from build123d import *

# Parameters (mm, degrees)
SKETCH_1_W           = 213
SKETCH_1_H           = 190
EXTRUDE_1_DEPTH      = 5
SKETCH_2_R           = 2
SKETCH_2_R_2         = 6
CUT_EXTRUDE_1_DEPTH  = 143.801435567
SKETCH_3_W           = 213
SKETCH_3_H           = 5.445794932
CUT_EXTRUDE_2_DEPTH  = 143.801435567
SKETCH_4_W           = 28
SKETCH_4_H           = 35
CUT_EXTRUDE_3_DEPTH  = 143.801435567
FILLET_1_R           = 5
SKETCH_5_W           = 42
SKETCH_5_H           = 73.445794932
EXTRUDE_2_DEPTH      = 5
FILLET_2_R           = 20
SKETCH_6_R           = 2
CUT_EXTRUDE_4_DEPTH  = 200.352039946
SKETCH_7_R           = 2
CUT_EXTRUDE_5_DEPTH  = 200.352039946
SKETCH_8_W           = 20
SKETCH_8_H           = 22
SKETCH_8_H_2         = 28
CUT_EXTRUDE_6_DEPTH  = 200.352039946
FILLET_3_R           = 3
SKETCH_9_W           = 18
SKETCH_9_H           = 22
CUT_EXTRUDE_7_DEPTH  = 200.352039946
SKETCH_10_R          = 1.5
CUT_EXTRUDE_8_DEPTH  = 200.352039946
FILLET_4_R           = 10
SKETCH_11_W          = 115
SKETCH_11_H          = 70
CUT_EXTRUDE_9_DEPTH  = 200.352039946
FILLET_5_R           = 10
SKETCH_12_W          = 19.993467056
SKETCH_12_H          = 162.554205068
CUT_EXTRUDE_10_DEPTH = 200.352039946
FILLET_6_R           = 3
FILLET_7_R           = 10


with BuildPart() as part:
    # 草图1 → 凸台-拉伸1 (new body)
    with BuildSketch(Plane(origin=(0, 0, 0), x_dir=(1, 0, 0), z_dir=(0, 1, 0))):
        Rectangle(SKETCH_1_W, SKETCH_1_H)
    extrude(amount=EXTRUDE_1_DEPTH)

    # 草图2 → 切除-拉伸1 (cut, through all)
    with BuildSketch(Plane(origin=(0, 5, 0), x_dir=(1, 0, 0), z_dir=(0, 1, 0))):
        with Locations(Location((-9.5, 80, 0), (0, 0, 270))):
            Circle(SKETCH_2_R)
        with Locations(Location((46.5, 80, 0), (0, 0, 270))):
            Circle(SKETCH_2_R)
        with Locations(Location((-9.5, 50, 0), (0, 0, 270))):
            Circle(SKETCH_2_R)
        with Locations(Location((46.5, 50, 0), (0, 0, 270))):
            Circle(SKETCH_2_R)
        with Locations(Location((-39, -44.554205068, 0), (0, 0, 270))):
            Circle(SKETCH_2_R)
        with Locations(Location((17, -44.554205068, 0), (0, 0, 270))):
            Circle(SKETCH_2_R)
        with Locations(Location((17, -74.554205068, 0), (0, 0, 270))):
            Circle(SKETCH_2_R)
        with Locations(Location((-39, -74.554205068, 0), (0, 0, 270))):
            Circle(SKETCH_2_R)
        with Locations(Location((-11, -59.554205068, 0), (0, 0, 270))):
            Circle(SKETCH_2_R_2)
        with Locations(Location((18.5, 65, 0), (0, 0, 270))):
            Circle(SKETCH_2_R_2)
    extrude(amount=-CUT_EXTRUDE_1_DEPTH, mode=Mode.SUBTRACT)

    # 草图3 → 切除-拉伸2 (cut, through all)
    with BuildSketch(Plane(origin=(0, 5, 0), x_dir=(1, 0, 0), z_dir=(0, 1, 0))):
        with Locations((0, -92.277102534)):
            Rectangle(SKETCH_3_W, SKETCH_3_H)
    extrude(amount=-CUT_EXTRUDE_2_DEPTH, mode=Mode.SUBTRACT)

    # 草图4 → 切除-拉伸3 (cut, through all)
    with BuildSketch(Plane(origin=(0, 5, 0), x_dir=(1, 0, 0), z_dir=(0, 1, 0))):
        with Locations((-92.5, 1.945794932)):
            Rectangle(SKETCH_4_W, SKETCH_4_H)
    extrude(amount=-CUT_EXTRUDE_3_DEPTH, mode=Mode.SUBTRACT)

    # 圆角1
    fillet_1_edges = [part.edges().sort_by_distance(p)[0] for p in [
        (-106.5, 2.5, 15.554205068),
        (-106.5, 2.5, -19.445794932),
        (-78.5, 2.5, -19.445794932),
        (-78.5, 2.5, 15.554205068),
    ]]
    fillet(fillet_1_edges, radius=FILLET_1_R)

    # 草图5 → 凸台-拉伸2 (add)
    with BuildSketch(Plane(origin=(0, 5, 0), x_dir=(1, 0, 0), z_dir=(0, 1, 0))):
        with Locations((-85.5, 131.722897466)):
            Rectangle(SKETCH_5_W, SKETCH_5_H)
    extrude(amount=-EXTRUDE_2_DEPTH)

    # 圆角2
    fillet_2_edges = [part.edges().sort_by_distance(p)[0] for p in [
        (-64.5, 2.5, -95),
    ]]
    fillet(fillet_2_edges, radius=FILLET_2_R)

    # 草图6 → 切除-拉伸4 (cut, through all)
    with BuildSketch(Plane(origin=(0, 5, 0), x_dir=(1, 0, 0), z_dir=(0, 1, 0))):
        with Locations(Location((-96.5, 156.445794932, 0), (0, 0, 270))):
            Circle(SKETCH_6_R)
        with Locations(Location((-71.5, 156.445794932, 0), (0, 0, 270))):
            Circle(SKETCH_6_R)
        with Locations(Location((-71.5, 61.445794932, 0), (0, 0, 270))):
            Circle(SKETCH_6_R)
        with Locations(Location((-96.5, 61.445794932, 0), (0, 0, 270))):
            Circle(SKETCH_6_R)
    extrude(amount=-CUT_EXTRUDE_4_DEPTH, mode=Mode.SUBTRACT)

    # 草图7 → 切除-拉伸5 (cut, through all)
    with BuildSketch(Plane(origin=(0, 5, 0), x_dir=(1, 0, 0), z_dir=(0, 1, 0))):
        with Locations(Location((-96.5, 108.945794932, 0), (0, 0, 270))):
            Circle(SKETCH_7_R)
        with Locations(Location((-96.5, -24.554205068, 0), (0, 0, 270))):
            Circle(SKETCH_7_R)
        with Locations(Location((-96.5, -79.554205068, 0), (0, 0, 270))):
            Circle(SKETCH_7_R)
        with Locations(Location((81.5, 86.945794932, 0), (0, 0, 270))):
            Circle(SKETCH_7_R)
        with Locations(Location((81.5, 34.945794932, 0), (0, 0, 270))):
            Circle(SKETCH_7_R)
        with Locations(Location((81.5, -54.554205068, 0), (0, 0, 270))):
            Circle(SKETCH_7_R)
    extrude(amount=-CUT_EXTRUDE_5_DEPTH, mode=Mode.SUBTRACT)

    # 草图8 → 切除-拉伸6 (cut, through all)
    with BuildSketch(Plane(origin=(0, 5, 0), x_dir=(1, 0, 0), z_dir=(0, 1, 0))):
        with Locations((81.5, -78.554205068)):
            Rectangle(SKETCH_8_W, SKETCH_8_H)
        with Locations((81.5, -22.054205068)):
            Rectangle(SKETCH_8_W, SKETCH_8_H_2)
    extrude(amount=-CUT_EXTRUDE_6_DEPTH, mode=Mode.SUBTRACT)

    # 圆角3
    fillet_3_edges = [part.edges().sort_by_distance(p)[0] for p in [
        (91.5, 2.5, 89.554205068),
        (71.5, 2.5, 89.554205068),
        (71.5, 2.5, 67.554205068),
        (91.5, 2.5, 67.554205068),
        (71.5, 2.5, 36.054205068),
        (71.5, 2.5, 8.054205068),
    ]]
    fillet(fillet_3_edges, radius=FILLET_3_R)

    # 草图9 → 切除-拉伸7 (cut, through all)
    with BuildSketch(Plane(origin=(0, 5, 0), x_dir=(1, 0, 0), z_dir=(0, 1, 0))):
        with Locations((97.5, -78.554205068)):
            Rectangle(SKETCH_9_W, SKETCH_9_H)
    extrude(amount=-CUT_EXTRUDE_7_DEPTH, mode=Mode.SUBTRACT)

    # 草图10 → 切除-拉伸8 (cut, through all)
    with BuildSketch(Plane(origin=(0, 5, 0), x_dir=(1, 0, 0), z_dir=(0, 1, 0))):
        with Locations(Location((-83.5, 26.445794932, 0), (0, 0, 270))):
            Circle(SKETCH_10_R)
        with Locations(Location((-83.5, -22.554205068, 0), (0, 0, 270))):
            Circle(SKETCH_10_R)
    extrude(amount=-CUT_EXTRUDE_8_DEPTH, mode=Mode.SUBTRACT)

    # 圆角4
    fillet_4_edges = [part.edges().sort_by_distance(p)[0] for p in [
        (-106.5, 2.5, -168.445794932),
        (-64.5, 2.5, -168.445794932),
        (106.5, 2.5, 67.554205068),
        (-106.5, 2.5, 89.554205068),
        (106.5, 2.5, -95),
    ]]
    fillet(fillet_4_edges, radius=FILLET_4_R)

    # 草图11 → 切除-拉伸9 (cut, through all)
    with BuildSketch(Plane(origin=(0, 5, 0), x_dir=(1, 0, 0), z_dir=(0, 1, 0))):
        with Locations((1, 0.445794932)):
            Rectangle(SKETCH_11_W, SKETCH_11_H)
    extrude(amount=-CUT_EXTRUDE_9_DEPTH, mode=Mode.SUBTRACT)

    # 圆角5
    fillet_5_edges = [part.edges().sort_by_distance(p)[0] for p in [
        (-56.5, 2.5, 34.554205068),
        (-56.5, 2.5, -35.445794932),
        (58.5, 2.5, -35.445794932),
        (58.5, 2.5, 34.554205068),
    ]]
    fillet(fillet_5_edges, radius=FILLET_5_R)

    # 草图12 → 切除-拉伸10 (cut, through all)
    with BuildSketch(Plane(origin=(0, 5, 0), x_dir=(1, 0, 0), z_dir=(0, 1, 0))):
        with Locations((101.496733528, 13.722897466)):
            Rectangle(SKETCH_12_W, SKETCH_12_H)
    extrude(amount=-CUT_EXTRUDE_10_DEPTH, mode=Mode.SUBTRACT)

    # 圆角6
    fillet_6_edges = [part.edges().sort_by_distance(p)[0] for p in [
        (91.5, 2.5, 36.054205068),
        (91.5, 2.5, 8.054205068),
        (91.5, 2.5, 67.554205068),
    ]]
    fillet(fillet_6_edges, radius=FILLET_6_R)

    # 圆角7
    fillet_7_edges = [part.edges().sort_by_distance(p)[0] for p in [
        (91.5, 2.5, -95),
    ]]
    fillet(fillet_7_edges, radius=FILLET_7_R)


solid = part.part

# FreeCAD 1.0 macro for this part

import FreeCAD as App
import Part
import Sketcher
from FreeCAD import Vector


def edges_at(feature, points):
    """Names of the edges that pass closest to the given points."""
    edges = feature.Shape.Edges
    near = lambda p: min(range(len(edges)), key=lambda i: edges[i].distToShape(Part.Vertex(*p))[0])
    return sorted({f"Edge{near(p) + 1}" for p in points})


def add_polygon(sketch, points):
    """Adds a closed chain of lines whose ends are joined by coincident constraints."""
    first, n = sketch.GeometryCount, len(points)
    for a, b in zip(points, points[1:] + points[:1]):
        sketch.addGeometry(Part.LineSegment(App.Vector(*a, 0), App.Vector(*b, 0)), False)
    for i in range(n):
        sketch.addConstraint(Sketcher.Constraint("Coincident", first + i, 2, first + (i + 1) % n, 1))

doc = App.newDocument("Part")
body = doc.addObject("PartDesign::Body", "Body")

sketch1 = body.newObject("Sketcher::SketchObject", "Sketch")
sketch1.AttachmentSupport = (doc.getObject("XZ_Plane"), [""])
sketch1.MapMode = "FlatFace"
add_polygon(sketch1, [(-106, -95), (-106, 95), (106, 95), (106, -95)])
sketch1.addConstraint([
    Sketcher.Constraint("Vertical", 0),
    Sketcher.Constraint("Horizontal", 1),
    Sketcher.Constraint("Vertical", 2),
    Sketcher.Constraint("Horizontal", 3),
    Sketcher.Constraint("Symmetric", 0, 2, 2, 2, -1, 1),
    Sketcher.Constraint("DistanceX", 1, 1, 1, 2, 213.0),
    Sketcher.Constraint("DistanceY", 0, 1, 0, 2, 190.0),
])
pad1 = body.newObject("PartDesign::Pad", "Pad")
pad1.Profile = sketch1
pad1.Length = 5
pad1.Reversed = True

sketch2 = body.newObject("Sketcher::SketchObject", "Sketch001")
sketch2.AttachmentSupport = (doc.getObject("XZ_Plane"), [""])
sketch2.MapMode = "FlatFace"
sketch2.AttachmentOffset = App.Placement(Vector(0, 0, -5), App.Rotation())
sketch2.addGeometry([
    Part.Circle(Vector(-9.5, -80, 0), Vector(0, 0, 1), 2),
    Part.Circle(Vector(46.5, -80, 0), Vector(0, 0, 1), 2),
    Part.Circle(Vector(-9.5, -50, 0), Vector(0, 0, 1), 2),
    Part.Circle(Vector(46.5, -50, 0), Vector(0, 0, 1), 2),
    Part.Circle(Vector(-39, 44.6, 0), Vector(0, 0, 1), 2),
    Part.Circle(Vector(17, 44.6, 0), Vector(0, 0, 1), 2),
    Part.Circle(Vector(17, 74.6, 0), Vector(0, 0, 1), 2),
    Part.Circle(Vector(-39, 74.6, 0), Vector(0, 0, 1), 2),
    Part.Circle(Vector(-11, 59.6, 0), Vector(0, 0, 1), 6),
    Part.Circle(Vector(18.5, -65, 0), Vector(0, 0, 1), 6),
], False)
sketch2.addConstraint([
    Sketcher.Constraint("Equal", 0, 1),
    Sketcher.Constraint("Equal", 1, 2),
    Sketcher.Constraint("Equal", 2, 3),
    Sketcher.Constraint("Equal", 3, 4),
    Sketcher.Constraint("Equal", 4, 5),
    Sketcher.Constraint("Equal", 5, 6),
    Sketcher.Constraint("Equal", 6, 7),
    Sketcher.Constraint("Equal", 8, 9),
    Sketcher.Constraint("Horizontal", 0, 3, 1, 3),
    Sketcher.Constraint("Horizontal", 2, 3, 3, 3),
    Sketcher.Constraint("Horizontal", 4, 3, 5, 3),
    Sketcher.Constraint("Horizontal", 6, 3, 7, 3),
    Sketcher.Constraint("Vertical", 0, 3, 2, 3),
    Sketcher.Constraint("Vertical", 1, 3, 3, 3),
    Sketcher.Constraint("Vertical", 5, 3, 6, 3),
    Sketcher.Constraint("Vertical", 4, 3, 7, 3),
    Sketcher.Constraint("Diameter", 0, 4.0),
    Sketcher.Constraint("Diameter", 8, 12.0),
    Sketcher.Constraint("DistanceY", 0, 3, -1, 1, 80.0),
    Sketcher.Constraint("DistanceY", 2, 3, -1, 1, 50.0),
    Sketcher.Constraint("DistanceX", 4, 3, -1, 1, 39.0),
    Sketcher.Constraint("DistanceX", -1, 1, 5, 3, 17.0),
    Sketcher.Constraint("DistanceX", 8, 3, -1, 1, 11.0),
    Sketcher.Constraint("DistanceY", 9, 3, -1, 1, 65.0),
    Sketcher.Constraint("DistanceX", 0, 3, 1, 3, 56.0),
    Sketcher.Constraint("DistanceY", 5, 3, 6, 3, 30.0),
    Sketcher.Constraint("DistanceY", 4, 3, 8, 3, 15.0),
    Sketcher.Constraint("DistanceX", 0, 3, 9, 3, 28.0),
    Sketcher.Constraint("DistanceX", 0, 3, -1, 1, 9.5),
    Sketcher.Constraint("DistanceY", -1, 1, 4, 3, 44.554205),
])
pocket1 = body.newObject("PartDesign::Pocket", "Pocket")
pocket1.Profile = sketch2
pocket1.Type = "ThroughAll"
pocket1.Reversed = True

sketch3 = body.newObject("Sketcher::SketchObject", "Sketch002")
sketch3.AttachmentSupport = (doc.getObject("XZ_Plane"), [""])
sketch3.MapMode = "FlatFace"
sketch3.AttachmentOffset = App.Placement(Vector(0, 0, -5), App.Rotation())
add_polygon(sketch3, [(-106, 90), (-106, 95), (106, 95), (106, 90)])
sketch3.addConstraint([
    Sketcher.Constraint("Vertical", 0),
    Sketcher.Constraint("Horizontal", 1),
    Sketcher.Constraint("Vertical", 2),
    Sketcher.Constraint("Horizontal", 3),
    Sketcher.Constraint("DistanceX", 1, 1, 1, 2, 213.0),
    Sketcher.Constraint("DistanceY", -1, 1, 0, 2, 95.0),
    Sketcher.Constraint("DistanceX", 0, 2, -1, 1, 106.5),
    Sketcher.Constraint("DistanceY", 0, 1, 0, 2, 5.445795),
])
pocket2 = body.newObject("PartDesign::Pocket", "Pocket001")
pocket2.Profile = sketch3
pocket2.Type = "ThroughAll"
pocket2.Reversed = True

sketch4 = body.newObject("Sketcher::SketchObject", "Sketch003")
sketch4.AttachmentSupport = (doc.getObject("XZ_Plane"), [""])
sketch4.MapMode = "FlatFace"
sketch4.AttachmentOffset = App.Placement(Vector(0, 0, -5), App.Rotation())
add_polygon(sketch4, [(-106, -19), (-106, 16), (-78, 16), (-78, -19)])
sketch4.addConstraint([
    Sketcher.Constraint("Vertical", 0),
    Sketcher.Constraint("Horizontal", 1),
    Sketcher.Constraint("Vertical", 2),
    Sketcher.Constraint("Horizontal", 3),
    Sketcher.Constraint("DistanceX", 1, 1, 1, 2, 28.0),
    Sketcher.Constraint("DistanceY", 0, 1, 0, 2, 35.0),
    Sketcher.Constraint("DistanceX", 0, 2, -1, 1, 106.5),
    Sketcher.Constraint("DistanceY", -1, 1, 0, 2, 15.554205),
])
pocket3 = body.newObject("PartDesign::Pocket", "Pocket002")
pocket3.Profile = sketch4
pocket3.Type = "ThroughAll"
pocket3.Reversed = True
doc.recompute()

fillet = body.newObject("PartDesign::Fillet", "Fillet")
fillet.Base = (pocket3, edges_at(pocket3, [
    (-106.5, 2.5, 15.554),
    (-106.5, 2.5, -19.446),
    (-78.5, 2.5, -19.446),
    (-78.5, 2.5, 15.554),
]))
fillet.Radius = 5

sketch5 = body.newObject("Sketcher::SketchObject", "Sketch004")
sketch5.AttachmentSupport = (doc.getObject("XZ_Plane"), [""])
sketch5.MapMode = "FlatFace"
sketch5.AttachmentOffset = App.Placement(Vector(0, 0, -5), App.Rotation())
add_polygon(sketch5, [(-106, -168), (-106, -95), (-64, -95), (-64, -168)])
sketch5.addConstraint([
    Sketcher.Constraint("Vertical", 0),
    Sketcher.Constraint("Horizontal", 1),
    Sketcher.Constraint("Vertical", 2),
    Sketcher.Constraint("Horizontal", 3),
    Sketcher.Constraint("DistanceX", 1, 1, 1, 2, 42.0),
    Sketcher.Constraint("DistanceY", 0, 2, -1, 1, 95.0),
    Sketcher.Constraint("DistanceX", 0, 2, -1, 1, 106.5),
    Sketcher.Constraint("DistanceY", 0, 1, 0, 2, 73.445795),
])
pad2 = body.newObject("PartDesign::Pad", "Pad001")
pad2.Profile = sketch5
pad2.Length = 5
doc.recompute()

fillet2 = body.newObject("PartDesign::Fillet", "Fillet001")
fillet2.Base = (pad2, edges_at(pad2, [(-64.5, 2.5, -95)]))
fillet2.Radius = 20

sketch6 = body.newObject("Sketcher::SketchObject", "Sketch005")
sketch6.AttachmentSupport = (doc.getObject("XZ_Plane"), [""])
sketch6.MapMode = "FlatFace"
sketch6.AttachmentOffset = App.Placement(Vector(0, 0, -5), App.Rotation())
sketch6.addGeometry([
    Part.Circle(Vector(-96.5, -156.4, 0), Vector(0, 0, 1), 2),
    Part.Circle(Vector(-71.5, -156.4, 0), Vector(0, 0, 1), 2),
    Part.Circle(Vector(-71.5, -61.4, 0), Vector(0, 0, 1), 2),
    Part.Circle(Vector(-96.5, -61.4, 0), Vector(0, 0, 1), 2),
], False)
sketch6.addConstraint([
    Sketcher.Constraint("Equal", 0, 1),
    Sketcher.Constraint("Equal", 1, 2),
    Sketcher.Constraint("Equal", 2, 3),
    Sketcher.Constraint("Horizontal", 0, 3, 1, 3),
    Sketcher.Constraint("Horizontal", 2, 3, 3, 3),
    Sketcher.Constraint("Vertical", 1, 3, 2, 3),
    Sketcher.Constraint("Vertical", 0, 3, 3, 3),
    Sketcher.Constraint("Diameter", 0, 4.0),
    Sketcher.Constraint("DistanceX", 0, 3, 1, 3, 25.0),
    Sketcher.Constraint("DistanceY", 1, 3, 2, 3, 95.0),
    Sketcher.Constraint("DistanceX", 0, 3, -1, 1, 96.5),
    Sketcher.Constraint("DistanceY", 0, 3, -1, 1, 156.445795),
])
pocket4 = body.newObject("PartDesign::Pocket", "Pocket003")
pocket4.Profile = sketch6
pocket4.Type = "ThroughAll"
pocket4.Reversed = True

sketch7 = body.newObject("Sketcher::SketchObject", "Sketch006")
sketch7.AttachmentSupport = (doc.getObject("XZ_Plane"), [""])
sketch7.MapMode = "FlatFace"
sketch7.AttachmentOffset = App.Placement(Vector(0, 0, -5), App.Rotation())
sketch7.addGeometry([
    Part.Circle(Vector(-96.5, -108.9, 0), Vector(0, 0, 1), 2),
    Part.Circle(Vector(-96.5, 24.6, 0), Vector(0, 0, 1), 2),
    Part.Circle(Vector(-96.5, 79.6, 0), Vector(0, 0, 1), 2),
    Part.Circle(Vector(81.5, -86.9, 0), Vector(0, 0, 1), 2),
    Part.Circle(Vector(81.5, -34.9, 0), Vector(0, 0, 1), 2),
    Part.Circle(Vector(81.5, 54.6, 0), Vector(0, 0, 1), 2),
], False)
sketch7.addConstraint([
    Sketcher.Constraint("Equal", 0, 1),
    Sketcher.Constraint("Equal", 1, 2),
    Sketcher.Constraint("Equal", 2, 3),
    Sketcher.Constraint("Equal", 3, 4),
    Sketcher.Constraint("Equal", 4, 5),
    Sketcher.Constraint("Vertical", 0, 3, 1, 3),
    Sketcher.Constraint("Vertical", 1, 3, 2, 3),
    Sketcher.Constraint("Vertical", 3, 3, 4, 3),
    Sketcher.Constraint("Vertical", 4, 3, 5, 3),
    Sketcher.Constraint("Diameter", 0, 4.0),
    Sketcher.Constraint("DistanceY", 1, 3, 2, 3, 55.0),
    Sketcher.Constraint("DistanceX", 0, 3, 3, 3, 178.0),
    Sketcher.Constraint("DistanceY", 0, 3, 3, 3, 22.0),
    Sketcher.Constraint("DistanceY", 3, 3, 4, 3, 52.0),
    Sketcher.Constraint("DistanceY", 5, 3, 2, 3, 25.0),
    Sketcher.Constraint("DistanceX", 0, 3, -1, 1, 96.5),
    Sketcher.Constraint("DistanceY", 0, 3, 1, 3, 133.5),
    Sketcher.Constraint("DistanceY", 0, 3, -1, 1, 108.945795),
])
pocket5 = body.newObject("PartDesign::Pocket", "Pocket004")
pocket5.Profile = sketch7
pocket5.Type = "ThroughAll"
pocket5.Reversed = True

sketch8 = body.newObject("Sketcher::SketchObject", "Sketch007")
sketch8.AttachmentSupport = (doc.getObject("XZ_Plane"), [""])
sketch8.MapMode = "FlatFace"
sketch8.AttachmentOffset = App.Placement(Vector(0, 0, -5), App.Rotation())
add_polygon(sketch8, [(72, 68), (72, 90), (92, 90), (92, 68)])
add_polygon(sketch8, [(72, 8), (72, 36), (92, 36), (92, 8)])
sketch8.addConstraint([
    Sketcher.Constraint("Vertical", 0),
    Sketcher.Constraint("Horizontal", 1),
    Sketcher.Constraint("Vertical", 2),
    Sketcher.Constraint("Horizontal", 3),
    Sketcher.Constraint("Vertical", 4),
    Sketcher.Constraint("Horizontal", 5),
    Sketcher.Constraint("Vertical", 6),
    Sketcher.Constraint("Horizontal", 7),
    Sketcher.Constraint("Vertical", 3, 2, 4, 2),
    Sketcher.Constraint("Vertical", 2, 2, 5, 2),
    Sketcher.Constraint("DistanceX", 1, 1, 1, 2, 20.0),
    Sketcher.Constraint("DistanceY", 0, 1, 0, 2, 22.0),
    Sketcher.Constraint("DistanceY", 4, 1, 4, 2, 28.0),
    Sketcher.Constraint("DistanceX", -1, 1, 0, 2, 71.5),
    Sketcher.Constraint("DistanceY", 4, 2, 3, 2, 31.5),
    Sketcher.Constraint("DistanceY", -1, 1, 0, 2, 89.554205),
])
pocket6 = body.newObject("PartDesign::Pocket", "Pocket005")
pocket6.Profile = sketch8
pocket6.Type = "ThroughAll"
pocket6.Reversed = True
doc.recompute()

fillet3 = body.newObject("PartDesign::Fillet", "Fillet002")
fillet3.Base = (pocket6, edges_at(pocket6, [
    (91.5, 2.5, 89.554),
    (71.5, 2.5, 89.554),
    (71.5, 2.5, 67.554),
    (91.5, 2.5, 67.554),
    (71.5, 2.5, 36.054),
    (71.5, 2.5, 8.054),
]))
fillet3.Radius = 3

sketch9 = body.newObject("Sketcher::SketchObject", "Sketch008")
sketch9.AttachmentSupport = (doc.getObject("XZ_Plane"), [""])
sketch9.MapMode = "FlatFace"
sketch9.AttachmentOffset = App.Placement(Vector(0, 0, -5), App.Rotation())
add_polygon(sketch9, [(88, 68), (88, 90), (106, 90), (106, 68)])
sketch9.addConstraint([
    Sketcher.Constraint("Vertical", 0),
    Sketcher.Constraint("Horizontal", 1),
    Sketcher.Constraint("Vertical", 2),
    Sketcher.Constraint("Horizontal", 3),
    Sketcher.Constraint("DistanceX", 1, 1, 1, 2, 18.0),
    Sketcher.Constraint("DistanceY", 0, 1, 0, 2, 22.0),
    Sketcher.Constraint("DistanceX", -1, 1, 0, 2, 88.5),
    Sketcher.Constraint("DistanceY", -1, 1, 0, 2, 89.554205),
])
pocket7 = body.newObject("PartDesign::Pocket", "Pocket006")
pocket7.Profile = sketch9
pocket7.Type = "ThroughAll"
pocket7.Reversed = True

sketch10 = body.newObject("Sketcher::SketchObject", "Sketch009")
sketch10.AttachmentSupport = (doc.getObject("XZ_Plane"), [""])
sketch10.MapMode = "FlatFace"
sketch10.AttachmentOffset = App.Placement(Vector(0, 0, -5), App.Rotation())
sketch10.addGeometry([
    Part.Circle(Vector(-83.5, -26.4, 0), Vector(0, 0, 1), 1.5),
    Part.Circle(Vector(-83.5, 22.6, 0), Vector(0, 0, 1), 1.5),
], False)
sketch10.addConstraint([
    Sketcher.Constraint("Equal", 0, 1),
    Sketcher.Constraint("Vertical", 0, 3, 1, 3),
    Sketcher.Constraint("Diameter", 0, 3.0),
    Sketcher.Constraint("DistanceY", 0, 3, 1, 3, 49.0),
    Sketcher.Constraint("DistanceX", 0, 3, -1, 1, 83.5),
    Sketcher.Constraint("DistanceY", 0, 3, -1, 1, 26.445795),
])
pocket8 = body.newObject("PartDesign::Pocket", "Pocket007")
pocket8.Profile = sketch10
pocket8.Type = "ThroughAll"
pocket8.Reversed = True
doc.recompute()

fillet4 = body.newObject("PartDesign::Fillet", "Fillet003")
fillet4.Base = (pocket8, edges_at(pocket8, [
    (-106.5, 2.5, -168.446),
    (-64.5, 2.5, -168.446),
    (106.5, 2.5, 67.554),
    (-106.5, 2.5, 89.554),
    (106.5, 2.5, -95),
]))
fillet4.Radius = 10

sketch11 = body.newObject("Sketcher::SketchObject", "Sketch010")
sketch11.AttachmentSupport = (doc.getObject("XZ_Plane"), [""])
sketch11.MapMode = "FlatFace"
sketch11.AttachmentOffset = App.Placement(Vector(0, 0, -5), App.Rotation())
add_polygon(sketch11, [(-56, -35), (-56, 35), (58, 35), (58, -35)])
sketch11.addConstraint([
    Sketcher.Constraint("Vertical", 0),
    Sketcher.Constraint("Horizontal", 1),
    Sketcher.Constraint("Vertical", 2),
    Sketcher.Constraint("Horizontal", 3),
    Sketcher.Constraint("DistanceX", 1, 1, 1, 2, 115.0),
    Sketcher.Constraint("DistanceY", 0, 1, 0, 2, 70.0),
    Sketcher.Constraint("DistanceX", 0, 2, -1, 1, 56.5),
    Sketcher.Constraint("DistanceY", -1, 1, 0, 2, 34.554205),
])
pocket9 = body.newObject("PartDesign::Pocket", "Pocket008")
pocket9.Profile = sketch11
pocket9.Type = "ThroughAll"
pocket9.Reversed = True
doc.recompute()

fillet5 = body.newObject("PartDesign::Fillet", "Fillet004")
fillet5.Base = (pocket9, edges_at(pocket9, [
    (-56.5, 2.5, 34.554),
    (-56.5, 2.5, -35.446),
    (58.5, 2.5, -35.446),
    (58.5, 2.5, 34.554),
]))
fillet5.Radius = 10

sketch12 = body.newObject("Sketcher::SketchObject", "Sketch011")
sketch12.AttachmentSupport = (doc.getObject("XZ_Plane"), [""])
sketch12.MapMode = "FlatFace"
sketch12.AttachmentOffset = App.Placement(Vector(0, 0, -5), App.Rotation())
add_polygon(sketch12, [(92, -95), (92, 68), (111, 68), (111, -95)])
sketch12.addConstraint([
    Sketcher.Constraint("Vertical", 0),
    Sketcher.Constraint("Horizontal", 1),
    Sketcher.Constraint("Vertical", 2),
    Sketcher.Constraint("Horizontal", 3),
    Sketcher.Constraint("DistanceY", 2, 2, -1, 1, 95.0),
    Sketcher.Constraint("DistanceX", -1, 1, 0, 2, 91.5),
    Sketcher.Constraint("DistanceX", 1, 1, 1, 2, 19.993467),
    Sketcher.Constraint("DistanceY", 0, 1, 0, 2, 162.554205),
])
pocket10 = body.newObject("PartDesign::Pocket", "Pocket009")
pocket10.Profile = sketch12
pocket10.Type = "ThroughAll"
pocket10.Reversed = True
doc.recompute()

fillet6 = body.newObject("PartDesign::Fillet", "Fillet005")
fillet6.Base = (pocket10, edges_at(pocket10, [(91.5, 2.5, 36.054), (91.5, 2.5, 8.054), (91.5, 2.5, 67.554)]))
fillet6.Radius = 3
doc.recompute()

fillet7 = body.newObject("PartDesign::Fillet", "Fillet006")
fillet7.Base = (fillet6, edges_at(fillet6, [(91.5, 2.5, -95)]))
fillet7.Radius = 10

doc.recompute()
